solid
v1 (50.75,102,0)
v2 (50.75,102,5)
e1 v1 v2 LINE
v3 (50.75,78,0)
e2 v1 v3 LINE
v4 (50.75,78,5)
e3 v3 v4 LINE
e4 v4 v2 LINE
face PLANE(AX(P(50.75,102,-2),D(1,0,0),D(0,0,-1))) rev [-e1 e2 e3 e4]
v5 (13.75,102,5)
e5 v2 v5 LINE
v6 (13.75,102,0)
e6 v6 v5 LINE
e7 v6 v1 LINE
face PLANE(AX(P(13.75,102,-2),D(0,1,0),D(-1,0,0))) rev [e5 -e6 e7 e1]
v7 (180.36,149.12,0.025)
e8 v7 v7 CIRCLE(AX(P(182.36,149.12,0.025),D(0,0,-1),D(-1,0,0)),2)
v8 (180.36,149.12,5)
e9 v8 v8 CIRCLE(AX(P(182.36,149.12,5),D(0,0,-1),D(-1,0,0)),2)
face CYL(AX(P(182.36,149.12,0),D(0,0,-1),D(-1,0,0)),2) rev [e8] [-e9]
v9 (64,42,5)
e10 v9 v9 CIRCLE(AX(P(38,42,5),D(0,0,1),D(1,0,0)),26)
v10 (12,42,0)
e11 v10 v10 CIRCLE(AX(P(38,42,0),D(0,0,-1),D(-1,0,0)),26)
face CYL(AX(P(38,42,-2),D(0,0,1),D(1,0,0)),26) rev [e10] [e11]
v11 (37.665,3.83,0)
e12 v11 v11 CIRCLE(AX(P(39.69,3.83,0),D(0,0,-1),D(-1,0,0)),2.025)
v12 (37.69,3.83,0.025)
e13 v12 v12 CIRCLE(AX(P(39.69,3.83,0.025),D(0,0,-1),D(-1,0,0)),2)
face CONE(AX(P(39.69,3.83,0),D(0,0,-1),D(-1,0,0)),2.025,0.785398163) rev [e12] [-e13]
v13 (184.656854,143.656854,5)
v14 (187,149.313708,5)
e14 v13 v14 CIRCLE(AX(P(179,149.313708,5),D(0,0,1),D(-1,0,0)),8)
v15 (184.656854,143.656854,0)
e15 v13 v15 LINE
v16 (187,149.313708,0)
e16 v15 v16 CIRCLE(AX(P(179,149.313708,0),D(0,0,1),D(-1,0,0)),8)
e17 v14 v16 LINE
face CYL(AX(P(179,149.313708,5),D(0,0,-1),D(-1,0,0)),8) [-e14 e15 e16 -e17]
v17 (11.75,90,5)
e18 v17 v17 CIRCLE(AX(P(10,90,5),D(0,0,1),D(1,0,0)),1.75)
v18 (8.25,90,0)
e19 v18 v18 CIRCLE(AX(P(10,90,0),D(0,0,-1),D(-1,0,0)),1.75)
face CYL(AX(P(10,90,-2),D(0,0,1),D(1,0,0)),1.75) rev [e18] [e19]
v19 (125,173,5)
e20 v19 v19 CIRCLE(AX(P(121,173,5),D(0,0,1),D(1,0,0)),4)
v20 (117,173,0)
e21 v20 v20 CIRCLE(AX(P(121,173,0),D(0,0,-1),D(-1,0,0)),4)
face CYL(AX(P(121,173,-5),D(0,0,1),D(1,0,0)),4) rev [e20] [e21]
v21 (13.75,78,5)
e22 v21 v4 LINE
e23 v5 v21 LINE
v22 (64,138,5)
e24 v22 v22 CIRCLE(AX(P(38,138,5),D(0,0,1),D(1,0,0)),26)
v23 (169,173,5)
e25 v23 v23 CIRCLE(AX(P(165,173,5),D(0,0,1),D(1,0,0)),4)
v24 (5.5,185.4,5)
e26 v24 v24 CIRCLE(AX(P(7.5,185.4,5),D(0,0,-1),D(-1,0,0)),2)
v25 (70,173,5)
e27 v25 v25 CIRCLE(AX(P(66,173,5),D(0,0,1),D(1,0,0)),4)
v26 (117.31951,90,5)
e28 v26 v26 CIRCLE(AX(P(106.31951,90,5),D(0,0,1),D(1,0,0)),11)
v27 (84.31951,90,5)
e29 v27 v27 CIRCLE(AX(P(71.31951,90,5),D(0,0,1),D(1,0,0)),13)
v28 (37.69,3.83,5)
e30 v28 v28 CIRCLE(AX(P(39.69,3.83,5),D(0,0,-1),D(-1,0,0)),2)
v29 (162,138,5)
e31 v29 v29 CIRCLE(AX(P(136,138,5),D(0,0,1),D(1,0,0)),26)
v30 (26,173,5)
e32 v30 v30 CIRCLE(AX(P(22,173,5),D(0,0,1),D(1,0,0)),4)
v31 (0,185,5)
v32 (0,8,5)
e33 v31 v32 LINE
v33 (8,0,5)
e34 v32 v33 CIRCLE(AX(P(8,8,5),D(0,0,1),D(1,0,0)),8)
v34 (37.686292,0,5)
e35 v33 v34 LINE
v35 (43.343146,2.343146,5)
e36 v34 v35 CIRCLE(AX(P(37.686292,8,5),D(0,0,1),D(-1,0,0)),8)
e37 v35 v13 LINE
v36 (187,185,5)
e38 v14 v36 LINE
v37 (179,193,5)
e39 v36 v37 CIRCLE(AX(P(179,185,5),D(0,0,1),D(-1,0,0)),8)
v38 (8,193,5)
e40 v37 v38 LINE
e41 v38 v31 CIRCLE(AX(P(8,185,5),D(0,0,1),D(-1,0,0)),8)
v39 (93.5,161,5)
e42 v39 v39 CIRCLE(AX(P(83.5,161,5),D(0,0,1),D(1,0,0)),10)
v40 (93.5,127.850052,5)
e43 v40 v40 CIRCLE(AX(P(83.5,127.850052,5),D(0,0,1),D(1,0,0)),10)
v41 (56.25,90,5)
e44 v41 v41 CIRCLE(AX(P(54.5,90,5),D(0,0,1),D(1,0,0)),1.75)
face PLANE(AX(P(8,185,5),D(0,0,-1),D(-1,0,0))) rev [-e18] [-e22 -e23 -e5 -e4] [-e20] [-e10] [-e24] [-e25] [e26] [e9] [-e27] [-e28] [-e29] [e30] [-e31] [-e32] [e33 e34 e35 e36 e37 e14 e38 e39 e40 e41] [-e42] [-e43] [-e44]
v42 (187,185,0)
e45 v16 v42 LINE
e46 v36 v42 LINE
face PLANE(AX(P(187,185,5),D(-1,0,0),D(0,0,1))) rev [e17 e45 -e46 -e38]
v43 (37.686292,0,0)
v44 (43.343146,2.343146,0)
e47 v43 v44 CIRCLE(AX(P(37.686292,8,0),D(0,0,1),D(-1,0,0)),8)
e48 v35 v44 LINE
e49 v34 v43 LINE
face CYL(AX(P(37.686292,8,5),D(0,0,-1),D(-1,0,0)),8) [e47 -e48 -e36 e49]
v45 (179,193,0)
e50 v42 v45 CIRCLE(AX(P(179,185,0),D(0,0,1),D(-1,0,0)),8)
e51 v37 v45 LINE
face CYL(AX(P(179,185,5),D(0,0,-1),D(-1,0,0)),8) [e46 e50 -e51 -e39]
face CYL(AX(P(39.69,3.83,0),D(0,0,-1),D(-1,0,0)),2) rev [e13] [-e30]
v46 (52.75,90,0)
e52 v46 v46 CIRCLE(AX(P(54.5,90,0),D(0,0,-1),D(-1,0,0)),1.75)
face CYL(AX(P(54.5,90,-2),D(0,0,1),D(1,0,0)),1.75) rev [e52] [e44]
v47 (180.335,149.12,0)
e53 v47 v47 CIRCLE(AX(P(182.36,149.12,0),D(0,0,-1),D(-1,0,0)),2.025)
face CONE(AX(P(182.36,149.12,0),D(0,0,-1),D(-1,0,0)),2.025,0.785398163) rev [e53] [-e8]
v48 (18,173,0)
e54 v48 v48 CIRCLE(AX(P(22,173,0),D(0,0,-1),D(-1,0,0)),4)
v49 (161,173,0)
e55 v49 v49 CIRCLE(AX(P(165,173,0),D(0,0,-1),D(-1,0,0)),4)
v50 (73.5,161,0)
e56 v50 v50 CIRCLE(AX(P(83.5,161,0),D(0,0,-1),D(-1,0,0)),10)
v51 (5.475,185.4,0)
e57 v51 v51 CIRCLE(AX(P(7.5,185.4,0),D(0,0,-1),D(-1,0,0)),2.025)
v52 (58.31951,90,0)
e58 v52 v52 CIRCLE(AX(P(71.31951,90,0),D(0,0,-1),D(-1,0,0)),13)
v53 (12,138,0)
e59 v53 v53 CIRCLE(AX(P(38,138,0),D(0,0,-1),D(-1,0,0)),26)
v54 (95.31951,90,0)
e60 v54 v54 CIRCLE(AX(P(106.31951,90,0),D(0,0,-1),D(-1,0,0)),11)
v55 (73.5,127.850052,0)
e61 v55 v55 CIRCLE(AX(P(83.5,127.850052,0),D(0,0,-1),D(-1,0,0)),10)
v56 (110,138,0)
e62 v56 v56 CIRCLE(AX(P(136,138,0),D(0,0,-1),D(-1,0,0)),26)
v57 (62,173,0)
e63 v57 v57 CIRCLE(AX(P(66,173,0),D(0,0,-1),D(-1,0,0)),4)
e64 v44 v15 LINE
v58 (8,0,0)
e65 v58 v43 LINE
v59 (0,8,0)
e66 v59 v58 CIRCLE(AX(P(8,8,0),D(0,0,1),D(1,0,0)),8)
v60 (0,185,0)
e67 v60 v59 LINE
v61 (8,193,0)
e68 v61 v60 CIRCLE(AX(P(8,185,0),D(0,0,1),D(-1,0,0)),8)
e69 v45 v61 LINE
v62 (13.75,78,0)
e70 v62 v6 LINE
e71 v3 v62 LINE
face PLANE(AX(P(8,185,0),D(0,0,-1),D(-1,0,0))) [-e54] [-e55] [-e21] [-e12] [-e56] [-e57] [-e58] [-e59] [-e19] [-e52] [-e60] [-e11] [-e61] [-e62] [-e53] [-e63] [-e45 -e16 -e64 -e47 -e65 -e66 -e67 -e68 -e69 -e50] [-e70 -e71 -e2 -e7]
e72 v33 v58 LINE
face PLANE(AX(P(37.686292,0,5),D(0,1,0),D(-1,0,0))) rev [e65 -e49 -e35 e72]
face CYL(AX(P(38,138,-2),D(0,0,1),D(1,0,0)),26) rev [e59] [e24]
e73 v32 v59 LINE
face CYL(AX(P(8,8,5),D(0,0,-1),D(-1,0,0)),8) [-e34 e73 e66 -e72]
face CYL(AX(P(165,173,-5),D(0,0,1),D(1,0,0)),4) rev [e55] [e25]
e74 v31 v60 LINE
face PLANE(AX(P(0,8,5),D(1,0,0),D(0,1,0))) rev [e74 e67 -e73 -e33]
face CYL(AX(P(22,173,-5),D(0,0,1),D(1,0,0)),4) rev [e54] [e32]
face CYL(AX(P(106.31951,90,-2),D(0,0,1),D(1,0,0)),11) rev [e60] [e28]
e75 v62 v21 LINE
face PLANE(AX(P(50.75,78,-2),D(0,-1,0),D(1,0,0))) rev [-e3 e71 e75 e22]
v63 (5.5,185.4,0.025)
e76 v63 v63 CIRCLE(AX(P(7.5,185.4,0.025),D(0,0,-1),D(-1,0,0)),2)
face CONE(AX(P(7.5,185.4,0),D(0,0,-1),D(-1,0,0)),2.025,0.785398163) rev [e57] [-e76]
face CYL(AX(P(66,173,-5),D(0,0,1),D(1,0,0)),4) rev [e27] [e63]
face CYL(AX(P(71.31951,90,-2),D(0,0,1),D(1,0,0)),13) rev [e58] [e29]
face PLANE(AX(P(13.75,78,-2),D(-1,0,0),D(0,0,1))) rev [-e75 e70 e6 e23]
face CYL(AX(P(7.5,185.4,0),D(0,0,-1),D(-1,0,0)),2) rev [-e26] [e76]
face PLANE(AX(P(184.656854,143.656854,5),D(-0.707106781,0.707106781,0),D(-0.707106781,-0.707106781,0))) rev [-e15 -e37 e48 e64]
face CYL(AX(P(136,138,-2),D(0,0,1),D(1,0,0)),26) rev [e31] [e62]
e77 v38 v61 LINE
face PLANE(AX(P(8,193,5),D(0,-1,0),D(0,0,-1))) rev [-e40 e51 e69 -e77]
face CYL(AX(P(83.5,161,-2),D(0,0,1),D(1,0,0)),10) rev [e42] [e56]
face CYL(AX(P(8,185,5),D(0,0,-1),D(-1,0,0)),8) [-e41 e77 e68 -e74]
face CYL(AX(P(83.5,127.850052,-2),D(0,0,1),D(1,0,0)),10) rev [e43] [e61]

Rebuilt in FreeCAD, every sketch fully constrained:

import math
import FreeCAD as App
import Part
import Sketcher
from FreeCAD import Vector
Q = App.Units.Quantity

doc = App.newDocument("Part")
body = doc.addObject("PartDesign::Body", "Body")

# Sketch on XY plane
sketch1 = body.newObject("Sketcher::SketchObject", "Sketch")
sketch1.AttachmentSupport = (doc.getObject("XY_Plane"), [""])
sketch1.MapMode = "FlatFace"
sketch1.addGeometry([
    Part.LineSegment(Vector(0, 185, 0), Vector(0, 8, 0)),  # 0
    Part.ArcOfCircle(Part.Circle(Vector(8, 8, 0), Vector(0, 0, 1), 8), math.radians(-180), math.radians(-90)),  # 1
    Part.LineSegment(Vector(8, 0, 0), Vector(37.686292, 0, 0)),  # 2
    Part.ArcOfCircle(Part.Circle(Vector(37.686292, 8, 0), Vector(0, 0, 1), 8), math.radians(-90), math.radians(-45)),  # 3
    Part.LineSegment(Vector(43.343146, 2.343146, 0), Vector(184.656854, 143.656854, 0)),  # 4
    Part.ArcOfCircle(Part.Circle(Vector(179, 149.313708, 0), Vector(0, 0, 1), 8), math.radians(-45), math.radians(0)),  # 5
    Part.LineSegment(Vector(187, 149.313708, 0), Vector(187, 185, 0)),  # 6
    Part.ArcOfCircle(Part.Circle(Vector(179, 185, 0), Vector(0, 0, 1), 8), math.radians(0), math.radians(90)),  # 7
    Part.LineSegment(Vector(179, 193, 0), Vector(8, 193, 0)),  # 8
    Part.ArcOfCircle(Part.Circle(Vector(8, 185, 0), Vector(0, 0, 1), 8), math.radians(90), math.radians(180)),  # 9
], False)
sketch1.addConstraint([
    Sketcher.Constraint("Tangent", 0, 2, 1, 1),
    Sketcher.Constraint("Tangent", 1, 2, 2, 1),
    Sketcher.Constraint("Tangent", 2, 2, 3, 1),
    Sketcher.Constraint("Tangent", 3, 2, 4, 1),
    Sketcher.Constraint("Tangent", 4, 2, 5, 1),
    Sketcher.Constraint("Tangent", 5, 2, 6, 1),
    Sketcher.Constraint("Tangent", 6, 2, 7, 1),
    Sketcher.Constraint("Tangent", 7, 2, 8, 1),
    Sketcher.Constraint("Tangent", 8, 2, 9, 1),
    Sketcher.Constraint("Tangent", 9, 2, 0, 1),
    Sketcher.Constraint("Vertical", 0),
    Sketcher.Constraint("Horizontal", 2),
    Sketcher.Constraint("Vertical", 6),
    Sketcher.Constraint("Horizontal", 8),
    Sketcher.Constraint("Equal", 1, 3),
    Sketcher.Constraint("Equal", 3, 5),
    Sketcher.Constraint("Equal", 5, 7),
    Sketcher.Constraint("Equal", 7, 9),
    Sketcher.Constraint("PointOnObject", 0, 2, -2),
    Sketcher.Constraint("PointOnObject", 1, 2, -1),
    Sketcher.Constraint("Radius", 1, 8.0),
    Sketcher.Constraint("DistanceX", 8, 2, 8, 1, 171.0),
    Sketcher.Constraint("DistanceY", 0, 2, 0, 1, 177.0),
    Sketcher.Constraint("Angle", 4, Q("45 deg")),
    Sketcher.Constraint("DistanceX", 2, 1, 2, 2, 29.686292),
])
pad1 = body.newObject("PartDesign::Pad", "Pad")
pad1.Profile = sketch1
pad1.Length = 5

# Sketch on XY plane
sketch2 = body.newObject("Sketcher::SketchObject", "Sketch001")
sketch2.AttachmentSupport = (doc.getObject("XY_Plane"), [""])
sketch2.MapMode = "FlatFace"
sketch2.AttachmentOffset = App.Placement(Vector(0, 0, 5), App.Rotation())
sketch2.addGeometry([
    Part.Circle(Vector(10, 90, 0), Vector(0, 0, 1), 1.75),  # 0
    Part.Circle(Vector(54.5, 90, 0), Vector(0, 0, 1), 1.75),  # 1
    Part.Circle(Vector(83.5, 161, 0), Vector(0, 0, 1), 10),  # 2
    Part.Circle(Vector(106.31951, 90, 0), Vector(0, 0, 1), 11),  # 3
    Part.Circle(Vector(71.31951, 90, 0), Vector(0, 0, 1), 13),  # 4
    Part.Circle(Vector(38, 138, 0), Vector(0, 0, 1), 26),  # 5
    Part.Circle(Vector(136, 138, 0), Vector(0, 0, 1), 26),  # 6
    Part.Circle(Vector(38, 42, 0), Vector(0, 0, 1), 26),  # 7
    Part.Circle(Vector(83.5, 127.850052, 0), Vector(0, 0, 1), 10),  # 8
    Part.LineSegment(Vector(13.75, 102, 0), Vector(13.75, 78, 0)),  # 9
    Part.LineSegment(Vector(13.75, 78, 0), Vector(50.75, 78, 0)),  # 10
    Part.LineSegment(Vector(50.75, 78, 0), Vector(50.75, 102, 0)),  # 11
    Part.LineSegment(Vector(50.75, 102, 0), Vector(13.75, 102, 0)),  # 12
], False)
sketch2.addConstraint([
    Sketcher.Constraint("Coincident", 9, 2, 10, 1),
    Sketcher.Constraint("Coincident", 10, 2, 11, 1),
    Sketcher.Constraint("Coincident", 11, 2, 12, 1),
    Sketcher.Constraint("Coincident", 12, 2, 9, 1),
    Sketcher.Constraint("Vertical", 9),
    Sketcher.Constraint("Horizontal", 10),
    Sketcher.Constraint("Vertical", 11),
    Sketcher.Constraint("Horizontal", 12),
    Sketcher.Constraint("Equal", 0, 1),
    Sketcher.Constraint("Equal", 5, 6),
    Sketcher.Constraint("Equal", 6, 7),
    Sketcher.Constraint("Equal", 2, 8),
    Sketcher.Constraint("Horizontal", 0, 3, 1, 3),
    Sketcher.Constraint("Horizontal", 1, 3, 3, 3),
    Sketcher.Constraint("Horizontal", 3, 3, 4, 3),
    Sketcher.Constraint("Horizontal", 5, 3, 6, 3),
    Sketcher.Constraint("Vertical", 5, 3, 7, 3),
    Sketcher.Constraint("Vertical", 2, 3, 8, 3),
    Sketcher.Constraint("Diameter", 2, 20.0),
    Sketcher.Constraint("Diameter", 3, 22.0),
    Sketcher.Constraint("Diameter", 4, 26.0),
    Sketcher.Constraint("Diameter", 5, 52.0),
    Sketcher.Constraint("Diameter", 0, 3.5),
    Sketcher.Constraint("DistanceX", 10, 1, 10, 2, 37.0),
    Sketcher.Constraint("DistanceY", 9, 2, 9, 1, 24.0),
    Sketcher.Constraint("DistanceX", -1, 1, 0, 3, 10.0),
    Sketcher.Constraint("DistanceY", -1, 1, 0, 3, 90.0),
    Sketcher.Constraint("DistanceY", -1, 1, 2, 3, 161.0),
    Sketcher.Constraint("DistanceX", -1, 1, 5, 3, 38.0),
    Sketcher.Constraint("DistanceY", -1, 1, 5, 3, 138.0),
    Sketcher.Constraint("DistanceX", -1, 1, 6, 3, 136.0),
    Sketcher.Constraint("DistanceY", -1, 1, 7, 3, 42.0),
    Sketcher.Constraint("DistanceY", -1, 1, 9, 2, 78.0),
    Sketcher.Constraint("DistanceX", 1, 3, 2, 3, 29.0),
    Sketcher.Constraint("DistanceX", 4, 3, 3, 3, 35.0),
    Sketcher.Constraint("DistanceX", -1, 1, 1, 3, 54.5),
    Sketcher.Constraint("DistanceX", -1, 1, 9, 2, 13.75),
    Sketcher.Constraint("DistanceX", -1, 1, 3, 3, 106.31951),
    Sketcher.Constraint("DistanceY", -1, 1, 8, 3, 127.850052),
])
pocket1 = body.newObject("PartDesign::Pocket", "Pocket")
pocket1.Profile = sketch2
pocket1.Length = 7

# Sketch on XY plane
sketch3 = body.newObject("Sketcher::SketchObject", "Sketch002")
sketch3.AttachmentSupport = (doc.getObject("XY_Plane"), [""])
sketch3.MapMode = "FlatFace"
sketch3.AttachmentOffset = App.Placement(Vector(0, 0, 5), App.Rotation())
sketch3.addGeometry([
    Part.Circle(Vector(22, 173, 0), Vector(0, 0, 1), 4),
    Part.Circle(Vector(66, 173, 0), Vector(0, 0, 1), 4),
    Part.Circle(Vector(121, 173, 0), Vector(0, 0, 1), 4),
    Part.Circle(Vector(165, 173, 0), Vector(0, 0, 1), 4),
], False)
sketch3.addConstraint([
    Sketcher.Constraint("Equal", 0, 1),
    Sketcher.Constraint("Equal", 1, 2),
    Sketcher.Constraint("Equal", 2, 3),
    Sketcher.Constraint("Horizontal", 0, 3, 1, 3),
    Sketcher.Constraint("Horizontal", 1, 3, 2, 3),
    Sketcher.Constraint("Horizontal", 2, 3, 3, 3),
    Sketcher.Constraint("Diameter", 0, 8.0),
    Sketcher.Constraint("DistanceX", -1, 1, 0, 3, 22.0),
    Sketcher.Constraint("DistanceY", -1, 1, 0, 3, 173.0),
    Sketcher.Constraint("DistanceX", -1, 1, 1, 3, 66.0),
    Sketcher.Constraint("DistanceX", -1, 1, 2, 3, 121.0),
    Sketcher.Constraint("DistanceX", -1, 1, 3, 3, 165.0),
])
pocket2 = body.newObject("PartDesign::Pocket", "Pocket001")
pocket2.Profile = sketch3
pocket2.Length = 10

# Sketch on XY plane
sketch4 = body.newObject("Sketcher::SketchObject", "Sketch003")
sketch4.AttachmentSupport = (doc.getObject("XY_Plane"), [""])
sketch4.MapMode = "FlatFace"
sketch4.addGeometry([
    Part.Circle(Vector(182.36, 149.12, 0), Vector(0, 0, 1), 2),
    Part.Circle(Vector(7.5, 185.4, 0), Vector(0, 0, 1), 2),
    Part.Circle(Vector(39.69, 3.83, 0), Vector(0, 0, 1), 2),
], False)
sketch4.addConstraint([
    Sketcher.Constraint("Equal", 0, 1),
    Sketcher.Constraint("Equal", 1, 2),
    Sketcher.Constraint("Diameter", 0, 4.0),
    Sketcher.Constraint("DistanceX", -1, 1, 1, 3, 7.5),
    Sketcher.Constraint("DistanceY", -1, 1, 1, 3, 185.4),
    Sketcher.Constraint("DistanceX", -1, 1, 0, 3, 182.36),
    Sketcher.Constraint("DistanceY", -1, 1, 0, 3, 149.12),
    Sketcher.Constraint("DistanceX", -1, 1, 2, 3, 39.69),
    Sketcher.Constraint("DistanceY", -1, 1, 2, 3, 3.83),
])
doc.recompute()
hole = body.newObject("PartDesign::Hole", "Hole")
hole.Profile = sketch4
hole.ThreadType = "None"
hole.Diameter = 4
hole.DepthType = "Dimension"
hole.Depth = 40.6
hole.DrillPoint = "Angled"
hole.DrillPointAngle = 118
hole.HoleCutType = "Countersink"
hole.HoleCutDiameter = 4.05
hole.HoleCutCountersinkAngle = 90
hole.Reversed = True

doc.recompute()
